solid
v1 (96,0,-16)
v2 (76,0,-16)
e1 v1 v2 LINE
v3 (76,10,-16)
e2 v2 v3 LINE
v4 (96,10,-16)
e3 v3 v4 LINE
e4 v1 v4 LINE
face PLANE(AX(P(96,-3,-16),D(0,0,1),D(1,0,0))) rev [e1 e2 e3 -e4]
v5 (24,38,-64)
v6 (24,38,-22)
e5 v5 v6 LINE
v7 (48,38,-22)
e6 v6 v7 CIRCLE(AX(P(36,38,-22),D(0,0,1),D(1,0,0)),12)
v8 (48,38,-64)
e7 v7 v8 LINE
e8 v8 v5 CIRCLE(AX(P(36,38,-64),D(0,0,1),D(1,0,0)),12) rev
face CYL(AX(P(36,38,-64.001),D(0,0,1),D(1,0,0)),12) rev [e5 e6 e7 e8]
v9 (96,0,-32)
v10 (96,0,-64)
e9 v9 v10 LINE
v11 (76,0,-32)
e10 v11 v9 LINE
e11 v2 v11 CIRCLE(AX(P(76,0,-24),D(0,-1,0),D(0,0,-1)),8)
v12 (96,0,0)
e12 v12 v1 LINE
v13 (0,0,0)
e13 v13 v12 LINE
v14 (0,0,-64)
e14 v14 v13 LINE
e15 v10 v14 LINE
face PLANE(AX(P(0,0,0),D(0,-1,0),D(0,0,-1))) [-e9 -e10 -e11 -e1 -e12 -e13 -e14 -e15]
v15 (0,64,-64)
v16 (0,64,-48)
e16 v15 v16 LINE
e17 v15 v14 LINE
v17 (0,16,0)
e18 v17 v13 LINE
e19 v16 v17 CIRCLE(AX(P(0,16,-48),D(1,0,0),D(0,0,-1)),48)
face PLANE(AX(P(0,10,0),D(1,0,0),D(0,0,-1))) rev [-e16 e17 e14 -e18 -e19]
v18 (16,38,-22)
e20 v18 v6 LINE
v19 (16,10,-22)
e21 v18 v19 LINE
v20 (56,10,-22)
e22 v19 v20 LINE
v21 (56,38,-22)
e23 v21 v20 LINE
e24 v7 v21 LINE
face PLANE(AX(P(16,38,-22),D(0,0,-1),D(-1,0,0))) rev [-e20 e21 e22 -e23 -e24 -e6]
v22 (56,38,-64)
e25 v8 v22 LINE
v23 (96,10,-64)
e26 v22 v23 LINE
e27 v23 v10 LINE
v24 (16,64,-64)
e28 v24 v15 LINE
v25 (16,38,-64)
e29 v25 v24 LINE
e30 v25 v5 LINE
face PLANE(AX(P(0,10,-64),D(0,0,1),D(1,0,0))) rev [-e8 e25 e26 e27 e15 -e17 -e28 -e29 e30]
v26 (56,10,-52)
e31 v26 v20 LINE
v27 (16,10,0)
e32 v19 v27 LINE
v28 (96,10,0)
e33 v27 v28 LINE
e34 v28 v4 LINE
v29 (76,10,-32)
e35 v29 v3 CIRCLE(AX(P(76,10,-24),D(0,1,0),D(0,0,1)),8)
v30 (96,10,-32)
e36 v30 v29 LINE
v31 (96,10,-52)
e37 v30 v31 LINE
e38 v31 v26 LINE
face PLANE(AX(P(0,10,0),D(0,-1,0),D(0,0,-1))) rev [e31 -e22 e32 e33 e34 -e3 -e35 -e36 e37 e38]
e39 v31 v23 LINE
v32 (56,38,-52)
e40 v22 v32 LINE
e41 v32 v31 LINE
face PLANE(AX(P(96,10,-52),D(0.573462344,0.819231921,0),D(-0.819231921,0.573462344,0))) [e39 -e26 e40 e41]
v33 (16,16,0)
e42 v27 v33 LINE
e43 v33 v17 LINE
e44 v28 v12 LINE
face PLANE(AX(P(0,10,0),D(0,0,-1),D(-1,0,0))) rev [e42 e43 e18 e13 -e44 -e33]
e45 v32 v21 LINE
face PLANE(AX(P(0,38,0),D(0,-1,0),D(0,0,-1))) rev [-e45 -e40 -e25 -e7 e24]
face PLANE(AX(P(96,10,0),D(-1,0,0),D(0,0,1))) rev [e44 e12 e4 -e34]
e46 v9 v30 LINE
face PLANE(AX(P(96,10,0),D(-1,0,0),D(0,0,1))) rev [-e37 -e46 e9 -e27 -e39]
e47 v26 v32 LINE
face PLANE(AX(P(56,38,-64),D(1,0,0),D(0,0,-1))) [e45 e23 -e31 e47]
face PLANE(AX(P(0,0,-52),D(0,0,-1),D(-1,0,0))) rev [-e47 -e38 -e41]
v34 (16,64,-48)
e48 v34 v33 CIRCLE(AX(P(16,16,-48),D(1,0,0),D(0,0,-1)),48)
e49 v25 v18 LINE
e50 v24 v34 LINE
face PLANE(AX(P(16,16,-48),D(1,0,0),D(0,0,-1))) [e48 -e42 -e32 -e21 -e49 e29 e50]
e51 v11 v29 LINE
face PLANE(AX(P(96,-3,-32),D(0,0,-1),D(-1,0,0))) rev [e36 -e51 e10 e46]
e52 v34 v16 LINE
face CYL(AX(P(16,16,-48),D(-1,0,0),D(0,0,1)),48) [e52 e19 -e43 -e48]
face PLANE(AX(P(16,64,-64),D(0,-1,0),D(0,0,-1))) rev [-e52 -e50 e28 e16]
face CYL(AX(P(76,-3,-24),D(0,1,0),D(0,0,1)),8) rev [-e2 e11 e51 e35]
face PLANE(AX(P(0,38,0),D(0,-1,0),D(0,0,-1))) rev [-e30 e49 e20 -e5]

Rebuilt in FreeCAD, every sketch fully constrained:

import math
import FreeCAD as App
import Part
import Sketcher
from FreeCAD import Vector
Q = App.Units.Quantity

doc = App.newDocument("Part")
body = doc.addObject("PartDesign::Body", "Body")

# Sketch on XZ plane
sketch1 = body.newObject("Sketcher::SketchObject", "Sketch")
sketch1.AttachmentSupport = (doc.getObject("XZ_Plane"), [""])
sketch1.MapMode = "FlatFace"
sketch1.addGeometry(Part.LineSegment(Vector(0, -64, 0), Vector(0, 0, 0)), False)
sketch1.addGeometry(Part.LineSegment(Vector(0, 0, 0), Vector(96, 0, 0)), False)
sketch1.addGeometry(Part.LineSegment(Vector(96, 0, 0), Vector(96, -64, 0)), False)
sketch1.addGeometry(Part.LineSegment(Vector(96, -64, 0), Vector(0, -64, 0)), False)
sketch1.addConstraint(Sketcher.Constraint("Coincident", 0, 2, 1, 1))
sketch1.addConstraint(Sketcher.Constraint("Coincident", 1, 2, 2, 1))
sketch1.addConstraint(Sketcher.Constraint("Coincident", 2, 2, 3, 1))
sketch1.addConstraint(Sketcher.Constraint("Coincident", 3, 2, 0, 1))
sketch1.addConstraint(Sketcher.Constraint("Vertical", 0))
sketch1.addConstraint(Sketcher.Constraint("Horizontal", 1))
sketch1.addConstraint(Sketcher.Constraint("Vertical", 2))
sketch1.addConstraint(Sketcher.Constraint("Horizontal", 3))
sketch1.addConstraint(Sketcher.Constraint("Coincident", 0, 2, -1, 1))
sketch1.addConstraint(Sketcher.Constraint("DistanceX", 1, 1, 1, 2, Q("96 mm")))
sketch1.addConstraint(Sketcher.Constraint("DistanceY", 0, 1, 0, 2, Q("64 mm")))
pad1 = body.newObject("PartDesign::Pad", "Pad")
pad1.Profile = sketch1
pad1.Length = 10
pad1.Reversed = True

# Sketch on XZ plane
sketch2 = body.newObject("Sketcher::SketchObject", "Sketch001")
sketch2.AttachmentSupport = (doc.getObject("XZ_Plane"), [""])
sketch2.MapMode = "FlatFace"
sketch2.AttachmentOffset = App.Placement(Vector(0, 0, -10), App.Rotation())
sketch2.addGeometry(Part.LineSegment(Vector(76, -16, 0), Vector(96, -16, 0)), False)
sketch2.addGeometry(Part.ArcOfCircle(Part.Circle(Vector(96, -24, 0), Vector(0, 0, 1), 8), math.radians(-90), math.radians(90)), False)
sketch2.addGeometry(Part.LineSegment(Vector(96, -32, 0), Vector(76, -32, 0)), False)
sketch2.addGeometry(Part.ArcOfCircle(Part.Circle(Vector(76, -24, 0), Vector(0, 0, 1), 8), math.radians(90), math.radians(270)), False)
sketch2.addConstraint(Sketcher.Constraint("Tangent", 0, 2, 1, 2))
sketch2.addConstraint(Sketcher.Constraint("Tangent", 1, 1, 2, 1))
sketch2.addConstraint(Sketcher.Constraint("Tangent", 2, 2, 3, 2))
sketch2.addConstraint(Sketcher.Constraint("Tangent", 3, 1, 0, 1))
sketch2.addConstraint(Sketcher.Constraint("Horizontal", 0))
sketch2.addConstraint(Sketcher.Constraint("Horizontal", 2))
sketch2.addConstraint(Sketcher.Constraint("Radius", 1, Q("8 mm")))
sketch2.addConstraint(Sketcher.Constraint("DistanceX", 0, 1, 0, 2, Q("20 mm")))
sketch2.addConstraint(Sketcher.Constraint("DistanceX", -1, 1, 1, 3, Q("96 mm")))
sketch2.addConstraint(Sketcher.Constraint("DistanceY", 1, 3, -1, 1, Q("24 mm")))
pocket1 = body.newObject("PartDesign::Pocket", "Pocket")
pocket1.Profile = sketch2
pocket1.Length = 13
pocket1.Reversed = True

# Sketch on YZ plane
sketch3 = body.newObject("Sketcher::SketchObject", "Sketch002")
sketch3.AttachmentSupport = (doc.getObject("YZ_Plane"), [""])
sketch3.MapMode = "FlatFace"
sketch3.addGeometry(Part.LineSegment(Vector(0, -64, 0), Vector(0, 0, 0)), False)
sketch3.addGeometry(Part.LineSegment(Vector(0, 0, 0), Vector(16, 0, 0)), False)
sketch3.addGeometry(Part.ArcOfCircle(Part.Circle(Vector(16, -48, 0), Vector(0, 0, 1), 48), math.radians(0), math.radians(90)), False)
sketch3.addGeometry(Part.LineSegment(Vector(64, -48, 0), Vector(64, -64, 0)), False)
sketch3.addGeometry(Part.LineSegment(Vector(64, -64, 0), Vector(0, -64, 0)), False)
sketch3.addConstraint(Sketcher.Constraint("Coincident", 0, 2, 1, 1))
sketch3.addConstraint(Sketcher.Constraint("Tangent", 1, 2, 2, 2))
sketch3.addConstraint(Sketcher.Constraint("Tangent", 2, 1, 3, 1))
sketch3.addConstraint(Sketcher.Constraint("Coincident", 3, 2, 4, 1))
sketch3.addConstraint(Sketcher.Constraint("Coincident", 4, 2, 0, 1))
sketch3.addConstraint(Sketcher.Constraint("Vertical", 0))
sketch3.addConstraint(Sketcher.Constraint("Horizontal", 1))
sketch3.addConstraint(Sketcher.Constraint("Vertical", 3))
sketch3.addConstraint(Sketcher.Constraint("Horizontal", 4))
sketch3.addConstraint(Sketcher.Constraint("Coincident", 0, 2, -1, 1))
sketch3.addConstraint(Sketcher.Constraint("Equal", 4, 0))
sketch3.addConstraint(Sketcher.Constraint("Radius", 2, Q("48 mm")))
sketch3.addConstraint(Sketcher.Constraint("DistanceX", 1, 1, 1, 2, Q("16 mm")))
pad2 = body.newObject("PartDesign::Pad", "Pad001")
pad2.Profile = sketch3
pad2.Length = 16

# Sketch on XZ plane
sketch4 = body.newObject("Sketcher::SketchObject", "Sketch003")
sketch4.AttachmentSupport = (doc.getObject("XZ_Plane"), [""])
sketch4.MapMode = "FlatFace"
sketch4.AttachmentOffset = App.Placement(Vector(0, 0, -10), App.Rotation())
sketch4.addGeometry(Part.LineSegment(Vector(16, -64, 0), Vector(16, -22, 0)), False)
sketch4.addGeometry(Part.LineSegment(Vector(16, -22, 0), Vector(56, -22, 0)), False)
sketch4.addGeometry(Part.LineSegment(Vector(56, -22, 0), Vector(56, -64, 0)), False)
sketch4.addGeometry(Part.LineSegment(Vector(56, -64, 0), Vector(16, -64, 0)), False)
sketch4.addConstraint(Sketcher.Constraint("Coincident", 0, 2, 1, 1))
sketch4.addConstraint(Sketcher.Constraint("Coincident", 1, 2, 2, 1))
sketch4.addConstraint(Sketcher.Constraint("Coincident", 2, 2, 3, 1))
sketch4.addConstraint(Sketcher.Constraint("Coincident", 3, 2, 0, 1))
sketch4.addConstraint(Sketcher.Constraint("Vertical", 0))
sketch4.addConstraint(Sketcher.Constraint("Horizontal", 1))
sketch4.addConstraint(Sketcher.Constraint("Vertical", 2))
sketch4.addConstraint(Sketcher.Constraint("Horizontal", 3))
sketch4.addConstraint(Sketcher.Constraint("DistanceX", 1, 1, 1, 2, Q("40 mm")))
sketch4.addConstraint(Sketcher.Constraint("DistanceY", 0, 1, 0, 2, Q("42 mm")))
sketch4.addConstraint(Sketcher.Constraint("DistanceX", -1, 1, 0, 2, Q("16 mm")))
sketch4.addConstraint(Sketcher.Constraint("DistanceY", 0, 2, -1, 1, Q("22 mm")))
pad3 = body.newObject("PartDesign::Pad", "Pad002")
pad3.Profile = sketch4
pad3.Length = 28
pad3.Reversed = True

# Sketch on XY plane
sketch5 = body.newObject("Sketcher::SketchObject", "Sketch004")
sketch5.AttachmentSupport = (doc.getObject("XY_Plane"), [""])
sketch5.MapMode = "FlatFace"
sketch5.AttachmentOffset = App.Placement(Vector(0, 0, -22), App.Rotation())
sketch5.addGeometry(Part.Circle(Vector(36, 38, 0), Vector(0, 0, 1), 12), False)
sketch5.addConstraint(Sketcher.Constraint("Diameter", 0, Q("24 mm")))
sketch5.addConstraint(Sketcher.Constraint("DistanceX", -1, 1, 0, 3, Q("36 mm")))
sketch5.addConstraint(Sketcher.Constraint("DistanceY", -1, 1, 0, 3, Q("38 mm")))
pocket2 = body.newObject("PartDesign::Pocket", "Pocket001")
pocket2.Profile = sketch5
pocket2.Type = "UpToFirst"

# Sketch on XY plane
sketch6 = body.newObject("Sketcher::SketchObject", "Sketch005")
sketch6.AttachmentSupport = (doc.getObject("XY_Plane"), [""])
sketch6.MapMode = "FlatFace"
sketch6.AttachmentOffset = App.Placement(Vector(0, 0, -64), App.Rotation())
sketch6.addGeometry(Part.LineSegment(Vector(56, 38, 0), Vector(96, 10, 0)), False)
sketch6.addGeometry(Part.LineSegment(Vector(96, 10, 0), Vector(56, 10, 0)), False)
sketch6.addGeometry(Part.LineSegment(Vector(56, 10, 0), Vector(56, 38, 0)), False)
sketch6.addConstraint(Sketcher.Constraint("Coincident", 0, 2, 1, 1))
sketch6.addConstraint(Sketcher.Constraint("Coincident", 1, 2, 2, 1))
sketch6.addConstraint(Sketcher.Constraint("Coincident", 2, 2, 0, 1))
sketch6.addConstraint(Sketcher.Constraint("Horizontal", 1))
sketch6.addConstraint(Sketcher.Constraint("Vertical", 2))
sketch6.addConstraint(Sketcher.Constraint("DistanceX", 1, 2, 1, 1, Q("40 mm")))
sketch6.addConstraint(Sketcher.Constraint("DistanceY", 2, 1, 2, 2, Q("28 mm")))
sketch6.addConstraint(Sketcher.Constraint("DistanceX", -1, 1, 0, 2, Q("96 mm")))
sketch6.addConstraint(Sketcher.Constraint("DistanceY", -1, 1, 0, 2, Q("10 mm")))
pad4 = body.newObject("PartDesign::Pad", "Pad003")
pad4.Profile = sketch6
pad4.Length = 12

doc.recompute()
